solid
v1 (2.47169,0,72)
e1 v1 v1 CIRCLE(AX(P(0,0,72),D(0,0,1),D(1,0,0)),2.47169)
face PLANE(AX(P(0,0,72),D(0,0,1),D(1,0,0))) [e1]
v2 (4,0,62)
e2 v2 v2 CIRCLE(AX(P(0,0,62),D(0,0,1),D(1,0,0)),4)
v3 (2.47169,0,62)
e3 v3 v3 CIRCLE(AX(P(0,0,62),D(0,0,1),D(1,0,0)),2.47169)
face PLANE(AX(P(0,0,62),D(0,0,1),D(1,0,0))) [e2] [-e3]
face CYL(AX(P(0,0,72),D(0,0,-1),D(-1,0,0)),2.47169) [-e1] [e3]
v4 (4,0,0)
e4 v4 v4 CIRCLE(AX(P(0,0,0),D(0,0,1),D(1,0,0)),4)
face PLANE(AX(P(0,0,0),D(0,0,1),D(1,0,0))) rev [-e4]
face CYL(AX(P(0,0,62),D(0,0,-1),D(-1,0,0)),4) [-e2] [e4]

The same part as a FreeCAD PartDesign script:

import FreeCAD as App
import Part
import Sketcher

V = App.Vector

doc = App.newDocument("Part")
body = doc.addObject("PartDesign::Body", "Body")

sketch1 = doc.addObject("Sketcher::SketchObject", "Sketch")
body.addObject(sketch1)
sketch1.AttachmentSupport = (doc.XY_Plane, [""])
sketch1.MapMode = "FlatFace"
sketch1.addGeometry(Part.Circle(V(0, 0, 0), V(0, 0, 1), 4), False)
sketch1.addConstraint(Sketcher.Constraint("Coincident", 0, 3, -1, 1))
sketch1.addConstraint(Sketcher.Constraint("Diameter", 0, 8.0))
pad1 = doc.addObject("PartDesign::Pad", "Pad")
body.addObject(pad1)
pad1.Profile = sketch1
pad1.Length = 62

sketch2 = doc.addObject("Sketcher::SketchObject", "Sketch001")
body.addObject(sketch2)
sketch2.AttachmentSupport = (doc.XY_Plane, [""])
sketch2.MapMode = "FlatFace"
sketch2.AttachmentOffset = App.Placement(V(0, 0, 62), App.Rotation())
sketch2.addGeometry(Part.Circle(V(0, 0, 0), V(0, 0, 1), 2.5), False)
sketch2.addConstraint(Sketcher.Constraint("Coincident", 0, 3, -1, 1))
sketch2.addConstraint(Sketcher.Constraint("Diameter", 0, 4.94338))
pad2 = doc.addObject("PartDesign::Pad", "Pad001")
body.addObject(pad2)
pad2.Profile = sketch2
pad2.Length = 10

doc.recompute()
